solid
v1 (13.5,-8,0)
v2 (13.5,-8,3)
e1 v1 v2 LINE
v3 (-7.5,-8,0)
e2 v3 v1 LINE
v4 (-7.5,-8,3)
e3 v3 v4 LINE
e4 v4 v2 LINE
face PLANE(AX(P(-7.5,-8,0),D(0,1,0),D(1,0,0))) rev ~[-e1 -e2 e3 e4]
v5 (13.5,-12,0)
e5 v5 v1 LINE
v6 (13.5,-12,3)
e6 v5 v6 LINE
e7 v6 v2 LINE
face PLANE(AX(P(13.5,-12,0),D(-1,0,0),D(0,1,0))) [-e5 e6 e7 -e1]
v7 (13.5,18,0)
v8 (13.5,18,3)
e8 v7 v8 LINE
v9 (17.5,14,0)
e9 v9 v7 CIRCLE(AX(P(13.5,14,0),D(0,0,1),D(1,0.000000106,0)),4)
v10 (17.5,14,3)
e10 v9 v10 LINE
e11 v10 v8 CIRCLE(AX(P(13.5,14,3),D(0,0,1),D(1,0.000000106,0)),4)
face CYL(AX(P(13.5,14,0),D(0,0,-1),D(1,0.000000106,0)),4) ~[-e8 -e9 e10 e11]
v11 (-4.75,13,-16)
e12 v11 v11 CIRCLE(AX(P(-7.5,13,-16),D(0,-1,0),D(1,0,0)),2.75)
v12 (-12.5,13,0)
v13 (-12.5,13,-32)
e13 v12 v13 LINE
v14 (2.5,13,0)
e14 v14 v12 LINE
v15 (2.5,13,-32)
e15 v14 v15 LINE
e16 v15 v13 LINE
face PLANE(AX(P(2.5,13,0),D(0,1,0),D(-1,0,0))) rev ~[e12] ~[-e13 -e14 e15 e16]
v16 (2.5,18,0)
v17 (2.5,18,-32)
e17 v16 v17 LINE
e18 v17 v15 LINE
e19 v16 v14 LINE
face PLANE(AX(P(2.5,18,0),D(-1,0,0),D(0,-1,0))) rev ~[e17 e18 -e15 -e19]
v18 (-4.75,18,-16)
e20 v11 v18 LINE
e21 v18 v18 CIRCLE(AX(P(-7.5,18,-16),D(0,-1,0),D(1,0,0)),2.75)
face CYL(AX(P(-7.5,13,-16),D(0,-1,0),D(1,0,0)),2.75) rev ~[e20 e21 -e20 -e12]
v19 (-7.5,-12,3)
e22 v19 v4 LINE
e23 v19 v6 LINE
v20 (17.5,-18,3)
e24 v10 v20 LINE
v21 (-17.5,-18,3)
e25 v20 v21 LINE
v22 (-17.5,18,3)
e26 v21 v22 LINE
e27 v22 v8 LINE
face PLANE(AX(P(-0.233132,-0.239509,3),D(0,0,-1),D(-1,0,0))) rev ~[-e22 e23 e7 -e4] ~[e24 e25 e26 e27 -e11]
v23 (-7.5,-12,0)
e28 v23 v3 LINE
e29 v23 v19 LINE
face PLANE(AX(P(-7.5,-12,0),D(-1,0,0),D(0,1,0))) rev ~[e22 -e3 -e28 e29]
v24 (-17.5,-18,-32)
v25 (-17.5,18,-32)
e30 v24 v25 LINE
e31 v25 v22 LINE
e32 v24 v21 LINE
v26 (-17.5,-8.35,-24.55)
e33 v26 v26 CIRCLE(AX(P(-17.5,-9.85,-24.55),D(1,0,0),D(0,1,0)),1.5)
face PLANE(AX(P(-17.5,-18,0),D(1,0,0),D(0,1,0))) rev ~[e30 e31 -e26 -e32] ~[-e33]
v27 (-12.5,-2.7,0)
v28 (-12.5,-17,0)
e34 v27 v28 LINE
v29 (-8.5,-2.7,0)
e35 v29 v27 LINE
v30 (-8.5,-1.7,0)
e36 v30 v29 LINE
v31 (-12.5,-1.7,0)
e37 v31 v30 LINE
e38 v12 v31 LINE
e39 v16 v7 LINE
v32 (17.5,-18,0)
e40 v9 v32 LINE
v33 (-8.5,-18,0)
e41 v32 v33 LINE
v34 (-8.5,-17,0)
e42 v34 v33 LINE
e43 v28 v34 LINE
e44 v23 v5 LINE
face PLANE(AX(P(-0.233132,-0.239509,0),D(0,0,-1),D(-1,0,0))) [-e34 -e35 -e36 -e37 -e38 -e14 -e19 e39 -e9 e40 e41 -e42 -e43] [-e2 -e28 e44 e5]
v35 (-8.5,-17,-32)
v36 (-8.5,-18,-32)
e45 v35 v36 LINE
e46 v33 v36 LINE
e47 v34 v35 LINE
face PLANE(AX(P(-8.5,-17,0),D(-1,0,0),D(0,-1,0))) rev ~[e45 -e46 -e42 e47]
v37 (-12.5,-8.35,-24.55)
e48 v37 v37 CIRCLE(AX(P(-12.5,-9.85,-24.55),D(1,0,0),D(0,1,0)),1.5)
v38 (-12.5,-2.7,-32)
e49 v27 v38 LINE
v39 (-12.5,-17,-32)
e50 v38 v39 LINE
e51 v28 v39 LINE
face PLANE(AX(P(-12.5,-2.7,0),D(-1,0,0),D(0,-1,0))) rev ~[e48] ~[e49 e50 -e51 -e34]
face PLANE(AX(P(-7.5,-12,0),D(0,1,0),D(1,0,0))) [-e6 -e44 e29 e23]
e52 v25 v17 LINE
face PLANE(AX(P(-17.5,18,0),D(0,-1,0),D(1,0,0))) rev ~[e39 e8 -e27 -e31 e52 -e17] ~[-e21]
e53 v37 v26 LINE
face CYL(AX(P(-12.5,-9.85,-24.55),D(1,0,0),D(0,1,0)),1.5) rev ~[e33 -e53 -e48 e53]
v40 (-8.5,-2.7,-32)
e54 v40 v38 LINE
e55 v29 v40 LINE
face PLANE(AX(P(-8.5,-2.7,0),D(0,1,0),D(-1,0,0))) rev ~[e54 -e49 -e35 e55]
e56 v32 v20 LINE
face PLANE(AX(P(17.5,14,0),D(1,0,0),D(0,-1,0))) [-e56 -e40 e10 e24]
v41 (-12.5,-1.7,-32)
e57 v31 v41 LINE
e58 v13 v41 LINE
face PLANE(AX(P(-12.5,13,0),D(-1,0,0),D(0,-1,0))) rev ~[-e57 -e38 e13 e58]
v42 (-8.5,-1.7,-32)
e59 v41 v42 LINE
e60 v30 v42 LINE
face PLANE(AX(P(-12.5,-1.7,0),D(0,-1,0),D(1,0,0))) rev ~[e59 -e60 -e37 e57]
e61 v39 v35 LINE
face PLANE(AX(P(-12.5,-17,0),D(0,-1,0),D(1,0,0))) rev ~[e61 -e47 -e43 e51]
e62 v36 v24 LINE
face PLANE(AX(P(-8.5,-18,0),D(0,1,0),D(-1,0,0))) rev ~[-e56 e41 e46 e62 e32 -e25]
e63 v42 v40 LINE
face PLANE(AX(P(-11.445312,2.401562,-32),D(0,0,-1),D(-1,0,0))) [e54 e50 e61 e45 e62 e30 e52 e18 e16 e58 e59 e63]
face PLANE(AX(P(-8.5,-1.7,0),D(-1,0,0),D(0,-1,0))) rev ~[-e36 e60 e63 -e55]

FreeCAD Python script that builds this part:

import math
import FreeCAD as App
import Part
import Sketcher

V = App.Vector


def add_polygon(sketch, points):
    """Adds a closed chain of lines whose ends are joined by coincident constraints."""
    first, n = sketch.GeometryCount, len(points)
    for a, b in zip(points, points[1:] + points[:1]):
        sketch.addGeometry(Part.LineSegment(App.Vector(*a, 0), App.Vector(*b, 0)), False)
    for i in range(n):
        sketch.addConstraint(Sketcher.Constraint("Coincident", first + i, 2, first + (i + 1) % n, 1))

doc = App.newDocument("Part")
body = doc.addObject("PartDesign::Body", "Body")

# Sketch on XY plane
sketch1 = body.newObject("Sketcher::SketchObject", "Sketch")
sketch1.AttachmentSupport = (doc.getObject("XY_Plane"), [""])
sketch1.MapMode = "FlatFace"
sketch1.addGeometry(Part.LineSegment(V(13.5, 18, 0), V(-17.5, 18, 0)), False)  # 0
sketch1.addGeometry(Part.LineSegment(V(-17.5, 18, 0), V(-17.5, -18, 0)), False)  # 1
sketch1.addGeometry(Part.LineSegment(V(-17.5, -18, 0), V(17.5, -18, 0)), False)  # 2
sketch1.addGeometry(Part.LineSegment(V(17.5, -18, 0), V(17.5, 14, 0)), False)  # 3
sketch1.addGeometry(Part.ArcOfCircle(Part.Circle(V(13.5, 14, 0), V(0, 0, 1), 4), math.radians(0), math.radians(90)), False)  # 4
add_polygon(sketch1, [(-7.5, -12), (-7.5, -8), (13.5, -8), (13.5, -12)])  # lines 5-8
sketch1.addConstraint([
    Sketcher.Constraint("Coincident", 0, 2, 1, 1),
    Sketcher.Constraint("Coincident", 1, 2, 2, 1),
    Sketcher.Constraint("Coincident", 2, 2, 3, 1),
    Sketcher.Constraint("Tangent", 3, 2, 4, 1),
    Sketcher.Constraint("Tangent", 4, 2, 0, 1),
    Sketcher.Constraint("Horizontal", 0),
    Sketcher.Constraint("Vertical", 1),
    Sketcher.Constraint("Horizontal", 2),
    Sketcher.Constraint("Vertical", 3),
    Sketcher.Constraint("Vertical", 5),
    Sketcher.Constraint("Horizontal", 6),
    Sketcher.Constraint("Vertical", 7),
    Sketcher.Constraint("Horizontal", 8),
    Sketcher.Constraint("Symmetric", 0, 2, 2, 2, -1, 1),
    Sketcher.Constraint("Vertical", 4, 2, 6, 2),
    Sketcher.Constraint("Radius", 4, 4.0),
    Sketcher.Constraint("DistanceX", 0, 2, 0, 1, 31.0),
    Sketcher.Constraint("DistanceX", 6, 1, 6, 2, 21.0),
    Sketcher.Constraint("DistanceY", 1, 2, 1, 1, 36.0),
    Sketcher.Constraint("DistanceY", 5, 1, 5, 2, 4.0),
    Sketcher.Constraint("DistanceY", 5, 2, -1, 1, 8.0),
])
pad1 = body.newObject("PartDesign::Pad", "Pad")
pad1.Profile = sketch1
pad1.Length = 3

# Sketch on XY plane
sketch2 = body.newObject("Sketcher::SketchObject", "Sketch001")
sketch2.AttachmentSupport = (doc.getObject("XY_Plane"), [""])
sketch2.MapMode = "FlatFace"
add_polygon(sketch2, [(-17.5, 18), (2.5, 18), (2.5, 13), (-12.5, 13), (-12.5, -1.7), (-8.5, -1.7), (-8.5, -2.7), (-12.5, -2.7), (-12.5, -17), (-8.5, -17), (-8.5, -18), (-17.5, -18)])  # lines 0-11
sketch2.addConstraint([
    Sketcher.Constraint("Horizontal", 0),
    Sketcher.Constraint("Vertical", 1),
    Sketcher.Constraint("Horizontal", 2),
    Sketcher.Constraint("Vertical", 3),
    Sketcher.Constraint("Horizontal", 4),
    Sketcher.Constraint("Vertical", 5),
    Sketcher.Constraint("Horizontal", 6),
    Sketcher.Constraint("Vertical", 7),
    Sketcher.Constraint("Horizontal", 8),
    Sketcher.Constraint("Vertical", 9),
    Sketcher.Constraint("Horizontal", 10),
    Sketcher.Constraint("Vertical", 11),
    Sketcher.Constraint("Vertical", 3, 2, 6, 2),
    Sketcher.Constraint("Vertical", 5, 2, 8, 2),
    Sketcher.Constraint("Equal", 5, 9),
    Sketcher.Constraint("DistanceX", 0, 1, 0, 2, 20.0),
    Sketcher.Constraint("DistanceX", 2, 2, 2, 1, 15.0),
    Sketcher.Constraint("DistanceX", 4, 1, 4, 2, 4.0),
    Sketcher.Constraint("DistanceY", 1, 2, 1, 1, 5.0),
    Sketcher.Constraint("DistanceY", 5, 2, 5, 1, 1.0),
    Sketcher.Constraint("DistanceY", 11, 1, 11, 2, 36.0),
    Sketcher.Constraint("DistanceY", 3, 2, 3, 1, 14.7),
    Sketcher.Constraint("DistanceY", -1, 1, 0, 2, 18.0),
    Sketcher.Constraint("DistanceX", -1, 1, 0, 2, 2.5),
])
pad2 = body.newObject("PartDesign::Pad", "Pad001")
pad2.Profile = sketch2
pad2.Length = 32
pad2.Reversed = True

# Sketch on XZ plane
sketch3 = body.newObject("Sketcher::SketchObject", "Sketch002")
sketch3.AttachmentSupport = (doc.getObject("XZ_Plane"), [""])
sketch3.MapMode = "FlatFace"
sketch3.AttachmentOffset = App.Placement(V(0, 0, -13), App.Rotation())
sketch3.addGeometry(Part.Circle(V(-7.5, -16, 0), V(0, 0, 1), 2.8), False)
sketch3.addConstraint([
    Sketcher.Constraint("Diameter", 0, 5.5),
    Sketcher.Constraint("DistanceY", 0, 3, -1, 1, 16.0),
    Sketcher.Constraint("DistanceX", 0, 3, -1, 1, 7.5),
])
pocket1 = body.newObject("PartDesign::Pocket", "Pocket")
pocket1.Profile = sketch3
pocket1.Type = "ThroughAll"

# Sketch on YZ plane
sketch4 = body.newObject("Sketcher::SketchObject", "Sketch003")
sketch4.AttachmentSupport = (doc.getObject("YZ_Plane"), [""])
sketch4.MapMode = "FlatFace"
sketch4.AttachmentOffset = App.Placement(V(0, 0, -12.5), App.Rotation())
sketch4.addGeometry(Part.Circle(V(-9.8, -24.6, 0), V(0, 0, 1), 1.5), False)
sketch4.addConstraint([
    Sketcher.Constraint("Diameter", 0, 3.0),
    Sketcher.Constraint("DistanceX", 0, 3, -1, 1, 9.85),
    Sketcher.Constraint("DistanceY", 0, 3, -1, 1, 24.55),
])
pocket2 = body.newObject("PartDesign::Pocket", "Pocket001")
pocket2.Profile = sketch4
pocket2.Type = "ThroughAll"

doc.recompute()
